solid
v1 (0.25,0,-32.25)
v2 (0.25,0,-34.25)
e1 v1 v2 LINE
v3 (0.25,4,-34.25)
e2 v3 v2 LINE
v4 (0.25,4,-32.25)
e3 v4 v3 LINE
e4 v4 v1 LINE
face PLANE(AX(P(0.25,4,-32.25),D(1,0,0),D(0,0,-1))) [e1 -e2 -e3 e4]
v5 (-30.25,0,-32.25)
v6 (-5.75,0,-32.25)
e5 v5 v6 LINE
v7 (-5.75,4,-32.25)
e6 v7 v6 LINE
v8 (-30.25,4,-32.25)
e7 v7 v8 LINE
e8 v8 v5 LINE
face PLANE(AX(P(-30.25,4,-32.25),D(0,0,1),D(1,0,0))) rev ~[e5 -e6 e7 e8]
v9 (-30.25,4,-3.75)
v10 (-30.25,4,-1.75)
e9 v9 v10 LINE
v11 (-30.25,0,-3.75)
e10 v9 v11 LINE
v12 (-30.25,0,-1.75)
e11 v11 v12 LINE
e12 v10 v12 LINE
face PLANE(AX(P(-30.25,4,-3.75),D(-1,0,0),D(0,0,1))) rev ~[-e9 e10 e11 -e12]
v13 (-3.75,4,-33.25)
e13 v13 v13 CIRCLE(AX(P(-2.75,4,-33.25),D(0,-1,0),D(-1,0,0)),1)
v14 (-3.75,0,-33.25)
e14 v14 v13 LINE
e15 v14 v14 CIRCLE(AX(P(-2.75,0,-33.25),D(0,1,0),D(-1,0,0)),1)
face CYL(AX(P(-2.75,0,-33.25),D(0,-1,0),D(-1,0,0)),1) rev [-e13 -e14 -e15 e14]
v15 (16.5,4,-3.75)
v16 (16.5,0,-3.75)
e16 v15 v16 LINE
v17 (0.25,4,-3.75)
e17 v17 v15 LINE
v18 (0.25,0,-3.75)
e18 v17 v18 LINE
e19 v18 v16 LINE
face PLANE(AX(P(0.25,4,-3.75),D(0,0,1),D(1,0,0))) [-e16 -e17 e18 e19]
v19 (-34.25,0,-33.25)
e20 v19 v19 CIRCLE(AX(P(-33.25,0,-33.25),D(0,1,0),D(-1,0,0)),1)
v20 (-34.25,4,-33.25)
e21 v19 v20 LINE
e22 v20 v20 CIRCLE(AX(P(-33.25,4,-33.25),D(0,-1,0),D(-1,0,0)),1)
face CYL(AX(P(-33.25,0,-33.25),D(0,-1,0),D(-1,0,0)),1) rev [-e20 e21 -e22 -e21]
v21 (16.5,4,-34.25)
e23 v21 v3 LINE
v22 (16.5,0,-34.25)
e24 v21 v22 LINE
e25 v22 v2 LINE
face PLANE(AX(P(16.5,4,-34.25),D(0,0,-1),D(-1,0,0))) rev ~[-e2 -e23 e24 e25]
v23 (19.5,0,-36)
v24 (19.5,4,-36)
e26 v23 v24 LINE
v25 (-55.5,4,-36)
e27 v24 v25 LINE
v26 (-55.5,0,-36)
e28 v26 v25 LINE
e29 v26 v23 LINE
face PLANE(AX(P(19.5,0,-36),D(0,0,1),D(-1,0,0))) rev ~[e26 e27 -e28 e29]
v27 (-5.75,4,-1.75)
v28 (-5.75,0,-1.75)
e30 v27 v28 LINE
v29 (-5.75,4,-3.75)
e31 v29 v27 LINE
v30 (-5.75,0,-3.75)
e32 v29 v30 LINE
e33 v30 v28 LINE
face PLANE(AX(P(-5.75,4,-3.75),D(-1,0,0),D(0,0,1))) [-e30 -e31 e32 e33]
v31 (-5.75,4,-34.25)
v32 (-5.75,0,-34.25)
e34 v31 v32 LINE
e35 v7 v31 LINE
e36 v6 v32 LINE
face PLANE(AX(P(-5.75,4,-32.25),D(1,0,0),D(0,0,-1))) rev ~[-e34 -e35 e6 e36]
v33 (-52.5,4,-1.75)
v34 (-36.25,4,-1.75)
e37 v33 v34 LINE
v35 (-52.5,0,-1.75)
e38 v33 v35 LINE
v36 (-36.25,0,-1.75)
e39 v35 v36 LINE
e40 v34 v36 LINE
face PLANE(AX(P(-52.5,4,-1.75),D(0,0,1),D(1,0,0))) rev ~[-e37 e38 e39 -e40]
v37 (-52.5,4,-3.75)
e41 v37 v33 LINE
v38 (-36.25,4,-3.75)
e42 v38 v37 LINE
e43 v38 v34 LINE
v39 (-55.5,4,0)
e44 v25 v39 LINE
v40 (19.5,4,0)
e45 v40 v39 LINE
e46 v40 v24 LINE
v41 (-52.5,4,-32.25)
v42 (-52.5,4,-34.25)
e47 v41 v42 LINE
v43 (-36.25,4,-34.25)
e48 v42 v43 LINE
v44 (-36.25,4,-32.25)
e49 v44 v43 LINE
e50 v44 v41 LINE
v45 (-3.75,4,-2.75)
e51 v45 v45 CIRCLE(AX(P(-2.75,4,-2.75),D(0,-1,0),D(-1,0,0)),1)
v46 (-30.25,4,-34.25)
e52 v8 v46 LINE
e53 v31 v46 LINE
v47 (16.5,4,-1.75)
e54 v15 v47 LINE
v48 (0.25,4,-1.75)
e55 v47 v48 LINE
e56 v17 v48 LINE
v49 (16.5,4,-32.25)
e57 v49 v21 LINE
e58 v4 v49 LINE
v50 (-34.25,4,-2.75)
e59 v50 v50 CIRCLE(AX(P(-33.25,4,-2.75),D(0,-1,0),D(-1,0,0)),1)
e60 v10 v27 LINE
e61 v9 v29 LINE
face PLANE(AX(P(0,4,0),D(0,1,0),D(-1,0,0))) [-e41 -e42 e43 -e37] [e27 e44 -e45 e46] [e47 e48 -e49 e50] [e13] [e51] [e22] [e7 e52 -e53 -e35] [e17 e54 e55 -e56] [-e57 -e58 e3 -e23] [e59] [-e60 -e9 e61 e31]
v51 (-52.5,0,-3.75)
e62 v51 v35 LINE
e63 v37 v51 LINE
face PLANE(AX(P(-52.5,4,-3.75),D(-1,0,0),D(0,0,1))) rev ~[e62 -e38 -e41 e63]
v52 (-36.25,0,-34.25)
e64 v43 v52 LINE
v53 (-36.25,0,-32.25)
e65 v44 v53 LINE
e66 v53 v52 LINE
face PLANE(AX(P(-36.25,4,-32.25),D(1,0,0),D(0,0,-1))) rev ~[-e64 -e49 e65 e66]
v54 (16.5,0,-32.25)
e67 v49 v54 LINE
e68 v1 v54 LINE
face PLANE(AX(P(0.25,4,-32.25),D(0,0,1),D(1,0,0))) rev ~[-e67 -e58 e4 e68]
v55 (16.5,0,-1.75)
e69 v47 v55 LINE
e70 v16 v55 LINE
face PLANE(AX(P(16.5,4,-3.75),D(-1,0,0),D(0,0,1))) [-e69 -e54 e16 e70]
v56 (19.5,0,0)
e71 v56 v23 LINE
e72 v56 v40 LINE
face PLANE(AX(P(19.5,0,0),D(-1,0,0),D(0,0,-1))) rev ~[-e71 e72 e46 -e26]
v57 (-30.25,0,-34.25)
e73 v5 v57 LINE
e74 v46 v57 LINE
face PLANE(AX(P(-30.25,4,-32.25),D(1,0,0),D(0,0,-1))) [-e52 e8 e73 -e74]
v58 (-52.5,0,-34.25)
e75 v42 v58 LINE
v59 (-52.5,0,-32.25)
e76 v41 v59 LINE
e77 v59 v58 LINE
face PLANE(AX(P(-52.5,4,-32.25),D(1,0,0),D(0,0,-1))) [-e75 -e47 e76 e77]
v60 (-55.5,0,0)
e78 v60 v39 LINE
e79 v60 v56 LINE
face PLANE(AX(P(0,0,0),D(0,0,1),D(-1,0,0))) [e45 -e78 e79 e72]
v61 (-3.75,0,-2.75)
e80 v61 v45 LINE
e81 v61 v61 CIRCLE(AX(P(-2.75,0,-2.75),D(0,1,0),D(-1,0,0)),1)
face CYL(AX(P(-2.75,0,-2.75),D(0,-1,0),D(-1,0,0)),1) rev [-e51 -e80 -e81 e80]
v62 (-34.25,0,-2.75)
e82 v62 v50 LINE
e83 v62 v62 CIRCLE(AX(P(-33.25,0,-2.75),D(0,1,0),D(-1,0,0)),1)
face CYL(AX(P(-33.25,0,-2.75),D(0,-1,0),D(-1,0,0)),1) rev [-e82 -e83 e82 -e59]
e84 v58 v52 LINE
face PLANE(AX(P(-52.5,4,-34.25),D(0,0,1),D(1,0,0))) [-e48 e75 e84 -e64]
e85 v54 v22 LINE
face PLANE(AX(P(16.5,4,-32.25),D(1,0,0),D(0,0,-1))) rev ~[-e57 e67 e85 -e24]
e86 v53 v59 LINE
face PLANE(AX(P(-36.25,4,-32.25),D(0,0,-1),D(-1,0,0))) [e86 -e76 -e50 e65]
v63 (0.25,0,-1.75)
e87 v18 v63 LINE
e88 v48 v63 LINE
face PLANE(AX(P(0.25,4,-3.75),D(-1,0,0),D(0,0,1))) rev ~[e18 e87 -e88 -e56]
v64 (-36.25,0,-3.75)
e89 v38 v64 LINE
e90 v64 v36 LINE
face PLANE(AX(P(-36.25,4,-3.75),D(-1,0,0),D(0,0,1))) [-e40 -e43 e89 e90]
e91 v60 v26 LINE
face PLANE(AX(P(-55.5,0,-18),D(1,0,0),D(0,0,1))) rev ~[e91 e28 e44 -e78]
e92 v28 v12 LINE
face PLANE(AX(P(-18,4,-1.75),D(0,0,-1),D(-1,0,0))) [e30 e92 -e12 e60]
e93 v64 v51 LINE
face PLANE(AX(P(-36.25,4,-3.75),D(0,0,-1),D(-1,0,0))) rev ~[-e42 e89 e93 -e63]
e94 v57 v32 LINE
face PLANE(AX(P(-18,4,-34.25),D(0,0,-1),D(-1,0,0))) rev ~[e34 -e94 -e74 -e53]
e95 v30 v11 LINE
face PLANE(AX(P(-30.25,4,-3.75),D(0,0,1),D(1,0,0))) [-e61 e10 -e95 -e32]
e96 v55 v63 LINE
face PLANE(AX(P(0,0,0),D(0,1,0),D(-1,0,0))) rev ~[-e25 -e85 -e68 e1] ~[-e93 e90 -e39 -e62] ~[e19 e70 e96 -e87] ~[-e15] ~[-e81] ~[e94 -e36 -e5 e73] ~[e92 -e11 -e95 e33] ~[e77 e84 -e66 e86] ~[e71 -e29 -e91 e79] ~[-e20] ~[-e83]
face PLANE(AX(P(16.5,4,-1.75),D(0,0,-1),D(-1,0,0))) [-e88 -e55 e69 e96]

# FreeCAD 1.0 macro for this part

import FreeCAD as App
import Part
import Sketcher
from FreeCAD import Vector


def add_polygon(sketch, points):
    """Adds a closed chain of lines whose ends are joined by coincident constraints."""
    first, n = sketch.GeometryCount, len(points)
    for a, b in zip(points, points[1:] + points[:1]):
        sketch.addGeometry(Part.LineSegment(App.Vector(*a, 0), App.Vector(*b, 0)), False)
    for i in range(n):
        sketch.addConstraint(Sketcher.Constraint("Coincident", first + i, 2, first + (i + 1) % n, 1))

doc = App.newDocument("Part")
body = doc.addObject("PartDesign::Body", "Body")

# Sketch on XZ plane
sketch1 = body.newObject("Sketcher::SketchObject", "Sketch")
sketch1.AttachmentSupport = (doc.getObject("XZ_Plane"), [""])
sketch1.MapMode = "FlatFace"
add_polygon(sketch1, [(19.5, 0), (19.5, -36), (-55.5, -36), (-55.5, 0)])  # lines 0-3
sketch1.addGeometry(Part.Circle(Vector(-2.75, -2.75, 0), Vector(0, 0, 1), 1), False)  # 4
sketch1.addGeometry(Part.Circle(Vector(-33.25, -2.75, 0), Vector(0, 0, 1), 1), False)  # 5
sketch1.addGeometry(Part.Circle(Vector(-2.75, -33.25, 0), Vector(0, 0, 1), 1), False)  # 6
sketch1.addGeometry(Part.Circle(Vector(-33.25, -33.25, 0), Vector(0, 0, 1), 1), False)  # 7
sketch1.addConstraint(Sketcher.Constraint("Vertical", 0))
sketch1.addConstraint(Sketcher.Constraint("Horizontal", 1))
sketch1.addConstraint(Sketcher.Constraint("Vertical", 2))
sketch1.addConstraint(Sketcher.Constraint("Horizontal", 3))
sketch1.addConstraint(Sketcher.Constraint("Equal", 4, 5))
sketch1.addConstraint(Sketcher.Constraint("Equal", 5, 6))
sketch1.addConstraint(Sketcher.Constraint("Equal", 6, 7))
sketch1.addConstraint(Sketcher.Constraint("PointOnObject", 2, 2, -1))
sketch1.addConstraint(Sketcher.Constraint("Horizontal", 4, 3, 5, 3))
sketch1.addConstraint(Sketcher.Constraint("Horizontal", 6, 3, 7, 3))
sketch1.addConstraint(Sketcher.Constraint("Vertical", 4, 3, 6, 3))
sketch1.addConstraint(Sketcher.Constraint("Vertical", 5, 3, 7, 3))
sketch1.addConstraint(Sketcher.Constraint("Diameter", 4, 2.0))
sketch1.addConstraint(Sketcher.Constraint("DistanceX", 1, 2, 1, 1, 75.0))
sketch1.addConstraint(Sketcher.Constraint("DistanceY", 0, 2, 0, 1, 36.0))
sketch1.addConstraint(Sketcher.Constraint("DistanceX", 5, 3, 4, 3, 30.5))
sketch1.addConstraint(Sketcher.Constraint("DistanceY", 6, 3, 4, 3, 30.5))
sketch1.addConstraint(Sketcher.Constraint("DistanceX", -1, 1, 0, 2, 19.5))
sketch1.addConstraint(Sketcher.Constraint("DistanceX", 4, 3, -1, 1, 2.75))
sketch1.addConstraint(Sketcher.Constraint("DistanceY", 4, 3, -1, 1, 2.75))
pad1 = body.newObject("PartDesign::Pad", "Pad")
pad1.Profile = sketch1
pad1.Length = 4
pad1.Reversed = True

# Sketch on XZ plane
sketch2 = body.newObject("Sketcher::SketchObject", "Sketch001")
sketch2.AttachmentSupport = (doc.getObject("XZ_Plane"), [""])
sketch2.MapMode = "FlatFace"
sketch2.AttachmentOffset = App.Placement(Vector(0, 0, -4), App.Rotation())
add_polygon(sketch2, [(-30.25, -3.75), (-30.25, -1.75), (-5.75, -1.75), (-5.75, -3.75)])  # lines 0-3
add_polygon(sketch2, [(-36.25, -1.75), (-36.25, -3.75), (-52.5, -3.75), (-52.5, -1.75)])  # lines 4-7
add_polygon(sketch2, [(-30.25, -32.25), (-5.75, -32.25), (-5.75, -34.25), (-30.25, -34.25)])  # lines 8-11
add_polygon(sketch2, [(16.5, -3.75), (0.25, -3.75), (0.25, -1.75), (16.5, -1.75)])  # lines 12-15
add_polygon(sketch2, [(0.25, -32.25), (16.5, -32.25), (16.5, -34.25), (0.25, -34.25)])  # lines 16-19
add_polygon(sketch2, [(-52.5, -34.25), (-52.5, -32.25), (-36.25, -32.25), (-36.25, -34.25)])  # lines 20-23
sketch2.addConstraint(Sketcher.Constraint("Vertical", 0))
sketch2.addConstraint(Sketcher.Constraint("Horizontal", 1))
sketch2.addConstraint(Sketcher.Constraint("Vertical", 2))
sketch2.addConstraint(Sketcher.Constraint("Horizontal", 3))
sketch2.addConstraint(Sketcher.Constraint("Vertical", 4))
sketch2.addConstraint(Sketcher.Constraint("Horizontal", 5))
sketch2.addConstraint(Sketcher.Constraint("Vertical", 6))
sketch2.addConstraint(Sketcher.Constraint("Horizontal", 7))
sketch2.addConstraint(Sketcher.Constraint("Horizontal", 8))
sketch2.addConstraint(Sketcher.Constraint("Vertical", 9))
sketch2.addConstraint(Sketcher.Constraint("Horizontal", 10))
sketch2.addConstraint(Sketcher.Constraint("Vertical", 11))
sketch2.addConstraint(Sketcher.Constraint("Horizontal", 12))
sketch2.addConstraint(Sketcher.Constraint("Vertical", 13))
sketch2.addConstraint(Sketcher.Constraint("Horizontal", 14))
sketch2.addConstraint(Sketcher.Constraint("Vertical", 15))
sketch2.addConstraint(Sketcher.Constraint("Horizontal", 16))
sketch2.addConstraint(Sketcher.Constraint("Vertical", 17))
sketch2.addConstraint(Sketcher.Constraint("Horizontal", 18))
sketch2.addConstraint(Sketcher.Constraint("Vertical", 19))
sketch2.addConstraint(Sketcher.Constraint("Vertical", 20))
sketch2.addConstraint(Sketcher.Constraint("Horizontal", 21))
sketch2.addConstraint(Sketcher.Constraint("Vertical", 22))
sketch2.addConstraint(Sketcher.Constraint("Horizontal", 23))
sketch2.addConstraint(Sketcher.Constraint("Horizontal", 3, 2, 4, 2))
sketch2.addConstraint(Sketcher.Constraint("Horizontal", 1, 2, 6, 2))
sketch2.addConstraint(Sketcher.Constraint("Horizontal", 5, 2, 12, 2))
sketch2.addConstraint(Sketcher.Constraint("Horizontal", 7, 2, 13, 2))
sketch2.addConstraint(Sketcher.Constraint("Horizontal", 11, 2, 16, 2))
sketch2.addConstraint(Sketcher.Constraint("Horizontal", 10, 2, 17, 2))
sketch2.addConstraint(Sketcher.Constraint("Horizontal", 19, 2, 20, 2))
sketch2.addConstraint(Sketcher.Constraint("Horizontal", 18, 2, 22, 2))
sketch2.addConstraint(Sketcher.Constraint("Vertical", 2, 2, 8, 2))
sketch2.addConstraint(Sketcher.Constraint("Vertical", 3, 2, 10, 2))
sketch2.addConstraint(Sketcher.Constraint("Vertical", 15, 2, 16, 2))
sketch2.addConstraint(Sketcher.Constraint("Vertical", 13, 2, 18, 2))
sketch2.addConstraint(Sketcher.Constraint("Vertical", 6, 2, 20, 2))
sketch2.addConstraint(Sketcher.Constraint("Vertical", 7, 2, 21, 2))
sketch2.addConstraint(Sketcher.Constraint("Equal", 7, 12))
sketch2.addConstraint(Sketcher.Constraint("Equal", 6, 9))
sketch2.addConstraint(Sketcher.Constraint("DistanceY", 0, 1, 0, 2, 2.0))
sketch2.addConstraint(Sketcher.Constraint("DistanceX", 1, 1, 1, 2, 24.5))
sketch2.addConstraint(Sketcher.Constraint("DistanceX", 4, 2, 3, 2, 6.0))
sketch2.addConstraint(Sketcher.Constraint("DistanceX", 2, 2, 12, 2, 6.0))
sketch2.addConstraint(Sketcher.Constraint("DistanceX", 5, 2, 5, 1, 16.25))
sketch2.addConstraint(Sketcher.Constraint("DistanceX", 5, 2, -1, 1, 52.5))
sketch2.addConstraint(Sketcher.Constraint("DistanceY", 8, 2, 2, 2, 28.5))
sketch2.addConstraint(Sketcher.Constraint("DistanceY", 0, 2, -1, 1, 1.75))
pocket1 = body.newObject("PartDesign::Pocket", "Pocket")
pocket1.Profile = sketch2
pocket1.Length = 4
pocket1.Reversed = True

doc.recompute()
